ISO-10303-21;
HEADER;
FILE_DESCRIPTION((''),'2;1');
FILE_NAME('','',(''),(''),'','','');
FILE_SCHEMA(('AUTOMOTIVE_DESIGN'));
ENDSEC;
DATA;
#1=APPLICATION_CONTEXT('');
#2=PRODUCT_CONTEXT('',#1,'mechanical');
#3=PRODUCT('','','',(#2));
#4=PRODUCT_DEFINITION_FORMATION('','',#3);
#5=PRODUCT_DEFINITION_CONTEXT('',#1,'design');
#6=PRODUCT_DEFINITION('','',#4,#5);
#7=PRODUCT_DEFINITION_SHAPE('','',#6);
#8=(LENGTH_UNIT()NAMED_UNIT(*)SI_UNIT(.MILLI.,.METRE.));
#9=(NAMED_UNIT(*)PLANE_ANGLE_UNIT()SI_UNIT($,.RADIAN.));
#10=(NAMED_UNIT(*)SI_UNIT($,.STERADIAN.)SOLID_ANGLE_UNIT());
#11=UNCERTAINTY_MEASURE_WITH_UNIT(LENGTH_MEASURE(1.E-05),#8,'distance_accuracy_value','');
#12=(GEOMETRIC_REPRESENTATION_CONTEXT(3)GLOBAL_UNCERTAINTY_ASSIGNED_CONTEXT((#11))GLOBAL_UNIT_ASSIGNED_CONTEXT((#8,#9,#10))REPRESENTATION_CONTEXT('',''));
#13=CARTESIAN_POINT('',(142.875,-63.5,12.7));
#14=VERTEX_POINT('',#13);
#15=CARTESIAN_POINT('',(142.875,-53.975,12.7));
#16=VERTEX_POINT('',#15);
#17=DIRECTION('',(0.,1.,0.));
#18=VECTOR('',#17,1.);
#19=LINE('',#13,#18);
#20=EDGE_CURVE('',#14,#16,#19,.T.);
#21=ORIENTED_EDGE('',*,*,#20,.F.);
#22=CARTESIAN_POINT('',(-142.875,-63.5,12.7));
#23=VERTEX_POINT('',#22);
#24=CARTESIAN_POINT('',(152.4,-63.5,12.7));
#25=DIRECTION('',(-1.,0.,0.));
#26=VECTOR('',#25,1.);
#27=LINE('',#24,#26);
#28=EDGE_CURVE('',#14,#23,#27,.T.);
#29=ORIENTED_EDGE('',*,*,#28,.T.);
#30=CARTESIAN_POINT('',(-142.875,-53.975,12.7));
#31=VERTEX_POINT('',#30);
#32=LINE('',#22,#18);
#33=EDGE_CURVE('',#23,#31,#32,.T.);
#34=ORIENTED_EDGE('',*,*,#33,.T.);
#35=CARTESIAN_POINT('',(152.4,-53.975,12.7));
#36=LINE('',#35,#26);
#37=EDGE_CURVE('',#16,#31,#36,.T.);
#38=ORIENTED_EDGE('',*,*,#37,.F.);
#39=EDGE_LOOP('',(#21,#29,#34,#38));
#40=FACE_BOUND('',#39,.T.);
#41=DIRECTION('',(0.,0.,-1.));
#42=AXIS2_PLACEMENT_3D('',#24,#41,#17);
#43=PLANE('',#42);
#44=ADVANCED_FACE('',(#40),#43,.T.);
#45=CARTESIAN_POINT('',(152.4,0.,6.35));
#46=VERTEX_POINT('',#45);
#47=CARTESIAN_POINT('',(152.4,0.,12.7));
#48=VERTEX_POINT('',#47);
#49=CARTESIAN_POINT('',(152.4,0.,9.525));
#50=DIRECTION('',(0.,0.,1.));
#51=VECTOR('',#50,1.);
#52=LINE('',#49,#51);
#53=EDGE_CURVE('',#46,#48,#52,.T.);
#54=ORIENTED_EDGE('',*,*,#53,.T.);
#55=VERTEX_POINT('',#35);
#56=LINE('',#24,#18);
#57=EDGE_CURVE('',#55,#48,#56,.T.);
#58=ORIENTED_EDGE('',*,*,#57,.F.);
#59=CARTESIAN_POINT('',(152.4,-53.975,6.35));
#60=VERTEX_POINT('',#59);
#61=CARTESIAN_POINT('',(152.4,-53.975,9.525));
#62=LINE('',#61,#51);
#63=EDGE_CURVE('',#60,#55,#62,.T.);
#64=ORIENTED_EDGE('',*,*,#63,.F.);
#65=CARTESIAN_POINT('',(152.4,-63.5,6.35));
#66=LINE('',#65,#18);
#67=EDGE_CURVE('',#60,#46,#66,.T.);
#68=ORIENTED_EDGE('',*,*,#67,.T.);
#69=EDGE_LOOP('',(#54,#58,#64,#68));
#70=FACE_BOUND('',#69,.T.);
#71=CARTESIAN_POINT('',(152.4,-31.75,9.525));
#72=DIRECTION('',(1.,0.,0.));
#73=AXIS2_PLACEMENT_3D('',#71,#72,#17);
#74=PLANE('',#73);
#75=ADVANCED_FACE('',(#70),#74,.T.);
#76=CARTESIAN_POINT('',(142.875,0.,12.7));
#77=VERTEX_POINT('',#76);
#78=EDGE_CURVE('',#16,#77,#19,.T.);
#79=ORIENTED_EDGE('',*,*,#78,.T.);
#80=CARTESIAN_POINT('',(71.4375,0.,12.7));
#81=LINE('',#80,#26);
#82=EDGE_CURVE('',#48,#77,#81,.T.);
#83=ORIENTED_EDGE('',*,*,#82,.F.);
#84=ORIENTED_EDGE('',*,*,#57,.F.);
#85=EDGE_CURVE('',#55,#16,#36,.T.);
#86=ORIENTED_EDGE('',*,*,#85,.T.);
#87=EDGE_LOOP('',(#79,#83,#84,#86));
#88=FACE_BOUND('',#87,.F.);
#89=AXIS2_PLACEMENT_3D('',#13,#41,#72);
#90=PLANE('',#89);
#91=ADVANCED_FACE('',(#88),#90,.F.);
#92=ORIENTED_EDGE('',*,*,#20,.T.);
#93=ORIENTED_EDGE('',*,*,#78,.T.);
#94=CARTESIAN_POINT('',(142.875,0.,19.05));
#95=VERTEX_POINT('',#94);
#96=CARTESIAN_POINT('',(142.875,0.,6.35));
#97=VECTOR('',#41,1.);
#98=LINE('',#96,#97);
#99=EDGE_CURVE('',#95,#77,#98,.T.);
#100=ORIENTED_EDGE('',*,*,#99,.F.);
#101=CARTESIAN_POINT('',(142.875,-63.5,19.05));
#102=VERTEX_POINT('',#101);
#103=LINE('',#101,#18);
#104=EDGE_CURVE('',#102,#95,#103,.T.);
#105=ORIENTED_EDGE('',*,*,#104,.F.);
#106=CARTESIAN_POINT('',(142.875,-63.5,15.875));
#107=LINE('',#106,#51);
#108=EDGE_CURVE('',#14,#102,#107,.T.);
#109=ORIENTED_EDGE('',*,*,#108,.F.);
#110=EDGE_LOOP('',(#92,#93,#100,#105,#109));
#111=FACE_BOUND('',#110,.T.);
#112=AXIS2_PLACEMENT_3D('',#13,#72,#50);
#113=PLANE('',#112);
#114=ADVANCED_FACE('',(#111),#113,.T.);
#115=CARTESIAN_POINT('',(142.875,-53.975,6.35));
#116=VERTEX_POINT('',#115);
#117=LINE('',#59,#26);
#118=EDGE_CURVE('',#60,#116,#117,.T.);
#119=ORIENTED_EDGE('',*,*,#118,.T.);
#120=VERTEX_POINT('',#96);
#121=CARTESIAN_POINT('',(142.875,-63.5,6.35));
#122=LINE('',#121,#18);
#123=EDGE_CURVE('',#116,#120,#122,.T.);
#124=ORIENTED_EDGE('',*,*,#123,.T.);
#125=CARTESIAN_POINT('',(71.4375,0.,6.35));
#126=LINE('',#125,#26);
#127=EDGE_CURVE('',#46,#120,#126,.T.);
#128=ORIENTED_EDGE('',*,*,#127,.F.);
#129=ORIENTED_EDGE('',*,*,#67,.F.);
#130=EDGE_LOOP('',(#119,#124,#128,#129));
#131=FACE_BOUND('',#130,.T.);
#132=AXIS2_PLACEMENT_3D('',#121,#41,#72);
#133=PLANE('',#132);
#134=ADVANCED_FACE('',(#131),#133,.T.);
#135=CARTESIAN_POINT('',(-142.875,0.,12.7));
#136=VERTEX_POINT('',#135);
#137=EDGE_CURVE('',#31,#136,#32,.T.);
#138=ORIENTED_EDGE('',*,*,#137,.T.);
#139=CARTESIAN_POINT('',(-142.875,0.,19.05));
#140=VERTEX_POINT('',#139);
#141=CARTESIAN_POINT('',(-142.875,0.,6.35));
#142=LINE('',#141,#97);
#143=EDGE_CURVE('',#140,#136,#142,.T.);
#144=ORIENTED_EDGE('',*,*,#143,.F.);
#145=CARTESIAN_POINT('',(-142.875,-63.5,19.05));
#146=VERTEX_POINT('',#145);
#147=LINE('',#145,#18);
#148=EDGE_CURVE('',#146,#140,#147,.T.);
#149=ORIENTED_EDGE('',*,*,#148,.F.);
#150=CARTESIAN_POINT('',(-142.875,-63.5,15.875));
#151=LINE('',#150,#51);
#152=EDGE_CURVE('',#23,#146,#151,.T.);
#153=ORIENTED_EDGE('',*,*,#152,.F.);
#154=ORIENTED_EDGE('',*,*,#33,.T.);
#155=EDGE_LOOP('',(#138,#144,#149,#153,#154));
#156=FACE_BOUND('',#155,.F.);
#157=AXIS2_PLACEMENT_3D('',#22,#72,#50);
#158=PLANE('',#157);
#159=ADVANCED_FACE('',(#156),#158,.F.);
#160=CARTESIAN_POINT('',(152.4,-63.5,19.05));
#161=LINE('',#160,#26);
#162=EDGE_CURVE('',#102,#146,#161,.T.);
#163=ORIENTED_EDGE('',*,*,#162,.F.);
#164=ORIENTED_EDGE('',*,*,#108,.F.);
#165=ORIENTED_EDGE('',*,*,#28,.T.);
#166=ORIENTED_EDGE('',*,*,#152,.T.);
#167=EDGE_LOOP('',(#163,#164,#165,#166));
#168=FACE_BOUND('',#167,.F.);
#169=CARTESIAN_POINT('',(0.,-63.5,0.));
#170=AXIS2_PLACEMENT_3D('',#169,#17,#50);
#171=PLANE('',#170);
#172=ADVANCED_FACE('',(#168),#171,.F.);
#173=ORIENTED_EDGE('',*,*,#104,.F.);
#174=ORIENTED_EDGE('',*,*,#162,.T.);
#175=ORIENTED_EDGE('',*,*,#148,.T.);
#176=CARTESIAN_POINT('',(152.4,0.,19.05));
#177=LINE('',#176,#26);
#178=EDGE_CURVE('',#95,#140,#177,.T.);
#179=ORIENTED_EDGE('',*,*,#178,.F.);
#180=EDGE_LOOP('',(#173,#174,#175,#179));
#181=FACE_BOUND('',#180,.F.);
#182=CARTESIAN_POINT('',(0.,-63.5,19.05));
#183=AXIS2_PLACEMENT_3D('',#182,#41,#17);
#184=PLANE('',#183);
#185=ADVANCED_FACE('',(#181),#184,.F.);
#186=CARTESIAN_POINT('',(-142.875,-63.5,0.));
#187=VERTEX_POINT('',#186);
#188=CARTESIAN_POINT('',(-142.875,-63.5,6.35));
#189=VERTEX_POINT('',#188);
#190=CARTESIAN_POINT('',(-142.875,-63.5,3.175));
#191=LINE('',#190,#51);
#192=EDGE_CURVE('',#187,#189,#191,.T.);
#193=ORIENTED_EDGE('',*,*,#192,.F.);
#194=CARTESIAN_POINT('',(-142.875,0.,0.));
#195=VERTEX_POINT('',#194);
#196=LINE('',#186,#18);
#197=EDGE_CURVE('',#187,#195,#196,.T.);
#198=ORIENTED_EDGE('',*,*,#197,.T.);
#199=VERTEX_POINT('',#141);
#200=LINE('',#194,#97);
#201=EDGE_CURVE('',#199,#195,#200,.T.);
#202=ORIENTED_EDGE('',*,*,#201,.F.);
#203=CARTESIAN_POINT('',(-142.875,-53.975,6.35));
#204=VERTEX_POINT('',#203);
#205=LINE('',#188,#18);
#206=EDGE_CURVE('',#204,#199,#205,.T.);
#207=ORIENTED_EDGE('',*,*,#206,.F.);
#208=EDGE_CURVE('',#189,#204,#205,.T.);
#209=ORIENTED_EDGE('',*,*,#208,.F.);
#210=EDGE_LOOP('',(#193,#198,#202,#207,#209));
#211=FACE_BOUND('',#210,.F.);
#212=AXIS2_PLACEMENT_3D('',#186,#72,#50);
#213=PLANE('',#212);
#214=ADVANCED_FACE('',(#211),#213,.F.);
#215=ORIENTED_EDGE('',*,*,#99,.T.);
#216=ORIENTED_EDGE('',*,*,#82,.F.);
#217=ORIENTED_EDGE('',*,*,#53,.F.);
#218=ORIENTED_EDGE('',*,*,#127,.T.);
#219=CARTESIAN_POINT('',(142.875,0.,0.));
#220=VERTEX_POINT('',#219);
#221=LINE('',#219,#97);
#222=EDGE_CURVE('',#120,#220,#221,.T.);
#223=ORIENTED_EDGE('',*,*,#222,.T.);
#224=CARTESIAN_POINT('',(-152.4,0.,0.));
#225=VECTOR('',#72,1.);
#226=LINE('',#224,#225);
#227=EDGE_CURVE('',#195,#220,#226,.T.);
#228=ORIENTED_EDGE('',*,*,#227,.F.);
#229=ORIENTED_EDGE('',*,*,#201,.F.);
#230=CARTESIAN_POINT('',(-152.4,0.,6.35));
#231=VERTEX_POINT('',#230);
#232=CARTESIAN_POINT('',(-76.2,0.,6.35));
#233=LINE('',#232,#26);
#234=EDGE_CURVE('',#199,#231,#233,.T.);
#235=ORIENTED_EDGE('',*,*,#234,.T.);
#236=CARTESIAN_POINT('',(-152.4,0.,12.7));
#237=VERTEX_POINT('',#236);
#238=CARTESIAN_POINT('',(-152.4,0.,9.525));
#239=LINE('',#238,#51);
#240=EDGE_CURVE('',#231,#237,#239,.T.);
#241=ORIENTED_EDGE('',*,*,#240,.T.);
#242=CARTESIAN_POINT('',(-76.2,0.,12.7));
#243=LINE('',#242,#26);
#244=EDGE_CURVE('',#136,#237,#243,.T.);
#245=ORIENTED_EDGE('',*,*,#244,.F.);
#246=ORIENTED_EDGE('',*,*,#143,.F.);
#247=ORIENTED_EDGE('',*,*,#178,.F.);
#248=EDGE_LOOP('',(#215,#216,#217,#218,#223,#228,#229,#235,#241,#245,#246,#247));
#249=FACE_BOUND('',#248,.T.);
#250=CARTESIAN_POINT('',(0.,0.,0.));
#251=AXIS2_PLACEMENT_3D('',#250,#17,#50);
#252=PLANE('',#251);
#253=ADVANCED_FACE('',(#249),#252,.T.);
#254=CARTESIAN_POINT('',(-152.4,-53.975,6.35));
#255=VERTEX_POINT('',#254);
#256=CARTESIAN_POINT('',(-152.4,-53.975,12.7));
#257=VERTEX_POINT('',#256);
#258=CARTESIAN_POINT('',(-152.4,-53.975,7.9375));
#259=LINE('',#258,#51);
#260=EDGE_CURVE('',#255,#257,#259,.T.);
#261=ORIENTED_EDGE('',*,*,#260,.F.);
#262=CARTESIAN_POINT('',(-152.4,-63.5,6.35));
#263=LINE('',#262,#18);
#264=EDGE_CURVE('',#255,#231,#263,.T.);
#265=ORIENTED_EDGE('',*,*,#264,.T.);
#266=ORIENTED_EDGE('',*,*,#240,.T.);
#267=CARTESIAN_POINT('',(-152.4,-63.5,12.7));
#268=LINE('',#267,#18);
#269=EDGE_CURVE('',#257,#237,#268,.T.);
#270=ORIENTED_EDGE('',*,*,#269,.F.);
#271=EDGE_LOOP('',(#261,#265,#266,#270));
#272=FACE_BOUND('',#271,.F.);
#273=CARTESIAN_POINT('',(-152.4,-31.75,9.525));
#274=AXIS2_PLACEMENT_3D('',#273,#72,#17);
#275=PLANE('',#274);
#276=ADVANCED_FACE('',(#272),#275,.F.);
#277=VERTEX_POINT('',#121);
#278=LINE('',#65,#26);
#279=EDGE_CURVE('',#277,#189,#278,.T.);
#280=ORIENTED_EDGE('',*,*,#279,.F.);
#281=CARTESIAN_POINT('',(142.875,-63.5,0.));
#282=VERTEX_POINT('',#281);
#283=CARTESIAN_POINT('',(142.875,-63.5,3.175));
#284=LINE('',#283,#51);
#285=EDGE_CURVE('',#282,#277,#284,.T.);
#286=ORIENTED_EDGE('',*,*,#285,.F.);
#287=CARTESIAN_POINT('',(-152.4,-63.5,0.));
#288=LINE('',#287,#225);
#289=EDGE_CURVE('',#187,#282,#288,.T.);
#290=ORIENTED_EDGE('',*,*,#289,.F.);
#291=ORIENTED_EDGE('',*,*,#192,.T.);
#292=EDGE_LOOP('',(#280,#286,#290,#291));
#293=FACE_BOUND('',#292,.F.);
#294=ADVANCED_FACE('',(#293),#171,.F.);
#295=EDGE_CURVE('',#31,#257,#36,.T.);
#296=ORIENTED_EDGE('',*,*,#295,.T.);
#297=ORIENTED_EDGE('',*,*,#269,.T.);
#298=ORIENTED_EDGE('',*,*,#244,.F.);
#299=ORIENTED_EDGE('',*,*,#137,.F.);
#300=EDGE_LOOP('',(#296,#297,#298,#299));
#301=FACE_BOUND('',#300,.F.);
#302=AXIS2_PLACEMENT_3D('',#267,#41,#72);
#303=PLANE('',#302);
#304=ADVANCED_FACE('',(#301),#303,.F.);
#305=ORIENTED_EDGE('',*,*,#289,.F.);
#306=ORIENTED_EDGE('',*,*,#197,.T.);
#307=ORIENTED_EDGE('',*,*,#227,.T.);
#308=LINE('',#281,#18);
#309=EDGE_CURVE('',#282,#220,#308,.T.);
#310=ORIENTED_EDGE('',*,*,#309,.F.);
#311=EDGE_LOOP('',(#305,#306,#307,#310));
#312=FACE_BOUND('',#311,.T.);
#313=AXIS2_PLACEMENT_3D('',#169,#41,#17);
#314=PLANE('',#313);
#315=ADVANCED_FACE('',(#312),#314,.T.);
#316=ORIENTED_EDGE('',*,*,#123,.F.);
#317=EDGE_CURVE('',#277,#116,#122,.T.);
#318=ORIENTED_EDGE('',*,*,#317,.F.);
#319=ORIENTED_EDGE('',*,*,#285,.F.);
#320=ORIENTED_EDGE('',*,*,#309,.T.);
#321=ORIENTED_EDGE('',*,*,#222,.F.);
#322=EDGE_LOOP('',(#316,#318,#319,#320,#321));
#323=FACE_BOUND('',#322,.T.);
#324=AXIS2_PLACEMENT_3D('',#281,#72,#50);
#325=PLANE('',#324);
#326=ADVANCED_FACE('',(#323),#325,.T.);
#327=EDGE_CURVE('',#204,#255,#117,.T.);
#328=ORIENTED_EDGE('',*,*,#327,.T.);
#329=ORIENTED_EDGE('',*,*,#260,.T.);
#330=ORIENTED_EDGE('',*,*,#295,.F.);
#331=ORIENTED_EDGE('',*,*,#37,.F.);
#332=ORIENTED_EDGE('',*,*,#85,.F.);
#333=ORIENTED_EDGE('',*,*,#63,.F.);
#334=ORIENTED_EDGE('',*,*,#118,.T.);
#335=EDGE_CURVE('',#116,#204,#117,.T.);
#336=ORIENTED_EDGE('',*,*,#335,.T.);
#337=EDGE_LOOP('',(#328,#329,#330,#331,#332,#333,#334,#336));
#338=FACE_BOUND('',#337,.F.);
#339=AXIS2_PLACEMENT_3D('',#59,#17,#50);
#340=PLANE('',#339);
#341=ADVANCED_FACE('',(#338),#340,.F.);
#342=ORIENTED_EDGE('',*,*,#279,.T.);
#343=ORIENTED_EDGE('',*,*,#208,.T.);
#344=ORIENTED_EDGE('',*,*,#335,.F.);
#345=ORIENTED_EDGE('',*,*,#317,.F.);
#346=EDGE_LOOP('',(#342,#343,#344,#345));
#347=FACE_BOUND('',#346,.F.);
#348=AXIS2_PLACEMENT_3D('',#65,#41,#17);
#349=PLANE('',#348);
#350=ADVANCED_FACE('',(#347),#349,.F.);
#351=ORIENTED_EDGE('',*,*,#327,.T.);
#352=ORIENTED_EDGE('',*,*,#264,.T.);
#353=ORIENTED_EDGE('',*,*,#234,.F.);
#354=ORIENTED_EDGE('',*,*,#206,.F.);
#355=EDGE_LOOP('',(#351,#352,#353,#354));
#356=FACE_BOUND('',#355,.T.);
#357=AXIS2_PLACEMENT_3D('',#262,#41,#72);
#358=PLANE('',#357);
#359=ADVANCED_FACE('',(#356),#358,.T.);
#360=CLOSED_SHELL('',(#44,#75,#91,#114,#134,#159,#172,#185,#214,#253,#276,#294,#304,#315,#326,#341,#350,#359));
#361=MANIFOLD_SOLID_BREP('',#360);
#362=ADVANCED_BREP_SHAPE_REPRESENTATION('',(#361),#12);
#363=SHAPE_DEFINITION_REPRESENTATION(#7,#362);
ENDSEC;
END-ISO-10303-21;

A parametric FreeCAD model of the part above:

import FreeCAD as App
import Part
import Sketcher
Q = App.Units.Quantity


def add_polygon(sketch, points):
    """Adds a closed chain of lines whose ends are joined by coincident constraints."""
    first, n = sketch.GeometryCount, len(points)
    for a, b in zip(points, points[1:] + points[:1]):
        sketch.addGeometry(Part.LineSegment(App.Vector(*a, 0), App.Vector(*b, 0)), False)
    for i in range(n):
        sketch.addConstraint(Sketcher.Constraint("Coincident", first + i, 2, first + (i + 1) % n, 1))

doc = App.newDocument("Part")
body = doc.addObject("PartDesign::Body", "Body")

sketch1 = body.newObject("Sketcher::SketchObject", "Sketch")
sketch1.AttachmentSupport = (doc.getObject("YZ_Plane"), [""])
sketch1.MapMode = "FlatFace"
add_polygon(sketch1, [(-64, 19), (-64, 0), (0, 0), (0, 19)])
sketch1.addConstraint([
    Sketcher.Constraint("Vertical", 0),
    Sketcher.Constraint("Horizontal", 1),
    Sketcher.Constraint("Vertical", 2),
    Sketcher.Constraint("Horizontal", 3),
    Sketcher.Constraint("Coincident", 1, 2, -1, 1),
    Sketcher.Constraint("DistanceX", 1, 1, 1, 2, Q("2.5 in")),
    Sketcher.Constraint("DistanceY", 0, 2, 0, 1, Q("0.75 in")),
])
pad1 = body.newObject("PartDesign::Pad", "Pad")
pad1.Profile = sketch1
pad1.Length = Q("12 in")
pad1.Midplane = True

sketch2 = body.newObject("Sketcher::SketchObject", "Sketch001")
sketch2.AttachmentSupport = (doc.getObject("XZ_Plane"), [""])
sketch2.MapMode = "FlatFace"
sketch2.AttachmentOffset = App.Placement(App.Vector(0, 0, 2.5 * 25.4), App.Rotation())
add_polygon(sketch2, [(143, 19), (143, 13), (152, 13), (152, 19)])
add_polygon(sketch2, [(143, 6), (143, 0), (152, 0), (152, 6)])
add_polygon(sketch2, [(-152, 19), (-152, 13), (-143, 13), (-143, 19)])
add_polygon(sketch2, [(-152, 6), (-152, 0), (-143, 0), (-143, 6)])
sketch2.addConstraint([
    Sketcher.Constraint("Vertical", 0),
    Sketcher.Constraint("Horizontal", 1),
    Sketcher.Constraint("Vertical", 2),
    Sketcher.Constraint("Horizontal", 3),
    Sketcher.Constraint("Vertical", 4),
    Sketcher.Constraint("Horizontal", 5),
    Sketcher.Constraint("Vertical", 6),
    Sketcher.Constraint("Horizontal", 7),
    Sketcher.Constraint("Vertical", 8),
    Sketcher.Constraint("Horizontal", 9),
    Sketcher.Constraint("Vertical", 10),
    Sketcher.Constraint("Horizontal", 11),
    Sketcher.Constraint("Vertical", 12),
    Sketcher.Constraint("Horizontal", 13),
    Sketcher.Constraint("Vertical", 14),
    Sketcher.Constraint("Horizontal", 15),
    Sketcher.Constraint("Symmetric", 5, 2, 12, 2, -1, 1),
    Sketcher.Constraint("Symmetric", 1, 2, 8, 2, -2),
    Sketcher.Constraint("Symmetric", 3, 2, 10, 2, -2),
    Sketcher.Constraint("Symmetric", 4, 2, 13, 2, -2),
    Sketcher.Constraint("Horizontal", 7, 2, 14, 2),
    Sketcher.Constraint("Vertical", 3, 2, 4, 2),
    Sketcher.Constraint("Vertical", 2, 2, 5, 2),
    Sketcher.Constraint("Equal", 2, 4),
    Sketcher.Constraint("DistanceX", -1, 1, 1, 2, Q("6 in")),
    Sketcher.Constraint("DistanceY", 0, 2, 0, 1, Q("0.25 in")),
    Sketcher.Constraint("DistanceY", -1, 1, 0, 2, Q("0.5 in")),
    Sketcher.Constraint("DistanceX", 1, 1, 1, 2, Q("0.375 in")),
])
pocket1 = body.newObject("PartDesign::Pocket", "Pocket")
pocket1.Profile = sketch2
pocket1.Type = "ThroughAll"

sketch3 = body.newObject("Sketcher::SketchObject", "Sketch002")
sketch3.AttachmentSupport = (doc.getObject("YZ_Plane"), [""])
sketch3.MapMode = "FlatFace"
sketch3.AttachmentOffset = App.Placement(App.Vector(0, 0, 6 * 25.4), App.Rotation())
add_polygon(sketch3, [(-64, 13), (-64, 6), (-54, 6), (-54, 13)])
sketch3.addConstraint([
    Sketcher.Constraint("Vertical", 0),
    Sketcher.Constraint("Horizontal", 1),
    Sketcher.Constraint("Vertical", 2),
    Sketcher.Constraint("Horizontal", 3),
    Sketcher.Constraint("DistanceY", 0, 2, 0, 1, Q("0.25 in")),
    Sketcher.Constraint("DistanceX", 0, 2, -1, 1, Q("2.5 in")),
    Sketcher.Constraint("DistanceY", -1, 1, 2, 2, Q("0.5 in")),
    Sketcher.Constraint("DistanceX", 1, 1, 1, 2, Q("0.375 in")),
])
pocket2 = body.newObject("PartDesign::Pocket", "Pocket001")
pocket2.Profile = sketch3
pocket2.Type = "ThroughAll"

doc.recompute()
